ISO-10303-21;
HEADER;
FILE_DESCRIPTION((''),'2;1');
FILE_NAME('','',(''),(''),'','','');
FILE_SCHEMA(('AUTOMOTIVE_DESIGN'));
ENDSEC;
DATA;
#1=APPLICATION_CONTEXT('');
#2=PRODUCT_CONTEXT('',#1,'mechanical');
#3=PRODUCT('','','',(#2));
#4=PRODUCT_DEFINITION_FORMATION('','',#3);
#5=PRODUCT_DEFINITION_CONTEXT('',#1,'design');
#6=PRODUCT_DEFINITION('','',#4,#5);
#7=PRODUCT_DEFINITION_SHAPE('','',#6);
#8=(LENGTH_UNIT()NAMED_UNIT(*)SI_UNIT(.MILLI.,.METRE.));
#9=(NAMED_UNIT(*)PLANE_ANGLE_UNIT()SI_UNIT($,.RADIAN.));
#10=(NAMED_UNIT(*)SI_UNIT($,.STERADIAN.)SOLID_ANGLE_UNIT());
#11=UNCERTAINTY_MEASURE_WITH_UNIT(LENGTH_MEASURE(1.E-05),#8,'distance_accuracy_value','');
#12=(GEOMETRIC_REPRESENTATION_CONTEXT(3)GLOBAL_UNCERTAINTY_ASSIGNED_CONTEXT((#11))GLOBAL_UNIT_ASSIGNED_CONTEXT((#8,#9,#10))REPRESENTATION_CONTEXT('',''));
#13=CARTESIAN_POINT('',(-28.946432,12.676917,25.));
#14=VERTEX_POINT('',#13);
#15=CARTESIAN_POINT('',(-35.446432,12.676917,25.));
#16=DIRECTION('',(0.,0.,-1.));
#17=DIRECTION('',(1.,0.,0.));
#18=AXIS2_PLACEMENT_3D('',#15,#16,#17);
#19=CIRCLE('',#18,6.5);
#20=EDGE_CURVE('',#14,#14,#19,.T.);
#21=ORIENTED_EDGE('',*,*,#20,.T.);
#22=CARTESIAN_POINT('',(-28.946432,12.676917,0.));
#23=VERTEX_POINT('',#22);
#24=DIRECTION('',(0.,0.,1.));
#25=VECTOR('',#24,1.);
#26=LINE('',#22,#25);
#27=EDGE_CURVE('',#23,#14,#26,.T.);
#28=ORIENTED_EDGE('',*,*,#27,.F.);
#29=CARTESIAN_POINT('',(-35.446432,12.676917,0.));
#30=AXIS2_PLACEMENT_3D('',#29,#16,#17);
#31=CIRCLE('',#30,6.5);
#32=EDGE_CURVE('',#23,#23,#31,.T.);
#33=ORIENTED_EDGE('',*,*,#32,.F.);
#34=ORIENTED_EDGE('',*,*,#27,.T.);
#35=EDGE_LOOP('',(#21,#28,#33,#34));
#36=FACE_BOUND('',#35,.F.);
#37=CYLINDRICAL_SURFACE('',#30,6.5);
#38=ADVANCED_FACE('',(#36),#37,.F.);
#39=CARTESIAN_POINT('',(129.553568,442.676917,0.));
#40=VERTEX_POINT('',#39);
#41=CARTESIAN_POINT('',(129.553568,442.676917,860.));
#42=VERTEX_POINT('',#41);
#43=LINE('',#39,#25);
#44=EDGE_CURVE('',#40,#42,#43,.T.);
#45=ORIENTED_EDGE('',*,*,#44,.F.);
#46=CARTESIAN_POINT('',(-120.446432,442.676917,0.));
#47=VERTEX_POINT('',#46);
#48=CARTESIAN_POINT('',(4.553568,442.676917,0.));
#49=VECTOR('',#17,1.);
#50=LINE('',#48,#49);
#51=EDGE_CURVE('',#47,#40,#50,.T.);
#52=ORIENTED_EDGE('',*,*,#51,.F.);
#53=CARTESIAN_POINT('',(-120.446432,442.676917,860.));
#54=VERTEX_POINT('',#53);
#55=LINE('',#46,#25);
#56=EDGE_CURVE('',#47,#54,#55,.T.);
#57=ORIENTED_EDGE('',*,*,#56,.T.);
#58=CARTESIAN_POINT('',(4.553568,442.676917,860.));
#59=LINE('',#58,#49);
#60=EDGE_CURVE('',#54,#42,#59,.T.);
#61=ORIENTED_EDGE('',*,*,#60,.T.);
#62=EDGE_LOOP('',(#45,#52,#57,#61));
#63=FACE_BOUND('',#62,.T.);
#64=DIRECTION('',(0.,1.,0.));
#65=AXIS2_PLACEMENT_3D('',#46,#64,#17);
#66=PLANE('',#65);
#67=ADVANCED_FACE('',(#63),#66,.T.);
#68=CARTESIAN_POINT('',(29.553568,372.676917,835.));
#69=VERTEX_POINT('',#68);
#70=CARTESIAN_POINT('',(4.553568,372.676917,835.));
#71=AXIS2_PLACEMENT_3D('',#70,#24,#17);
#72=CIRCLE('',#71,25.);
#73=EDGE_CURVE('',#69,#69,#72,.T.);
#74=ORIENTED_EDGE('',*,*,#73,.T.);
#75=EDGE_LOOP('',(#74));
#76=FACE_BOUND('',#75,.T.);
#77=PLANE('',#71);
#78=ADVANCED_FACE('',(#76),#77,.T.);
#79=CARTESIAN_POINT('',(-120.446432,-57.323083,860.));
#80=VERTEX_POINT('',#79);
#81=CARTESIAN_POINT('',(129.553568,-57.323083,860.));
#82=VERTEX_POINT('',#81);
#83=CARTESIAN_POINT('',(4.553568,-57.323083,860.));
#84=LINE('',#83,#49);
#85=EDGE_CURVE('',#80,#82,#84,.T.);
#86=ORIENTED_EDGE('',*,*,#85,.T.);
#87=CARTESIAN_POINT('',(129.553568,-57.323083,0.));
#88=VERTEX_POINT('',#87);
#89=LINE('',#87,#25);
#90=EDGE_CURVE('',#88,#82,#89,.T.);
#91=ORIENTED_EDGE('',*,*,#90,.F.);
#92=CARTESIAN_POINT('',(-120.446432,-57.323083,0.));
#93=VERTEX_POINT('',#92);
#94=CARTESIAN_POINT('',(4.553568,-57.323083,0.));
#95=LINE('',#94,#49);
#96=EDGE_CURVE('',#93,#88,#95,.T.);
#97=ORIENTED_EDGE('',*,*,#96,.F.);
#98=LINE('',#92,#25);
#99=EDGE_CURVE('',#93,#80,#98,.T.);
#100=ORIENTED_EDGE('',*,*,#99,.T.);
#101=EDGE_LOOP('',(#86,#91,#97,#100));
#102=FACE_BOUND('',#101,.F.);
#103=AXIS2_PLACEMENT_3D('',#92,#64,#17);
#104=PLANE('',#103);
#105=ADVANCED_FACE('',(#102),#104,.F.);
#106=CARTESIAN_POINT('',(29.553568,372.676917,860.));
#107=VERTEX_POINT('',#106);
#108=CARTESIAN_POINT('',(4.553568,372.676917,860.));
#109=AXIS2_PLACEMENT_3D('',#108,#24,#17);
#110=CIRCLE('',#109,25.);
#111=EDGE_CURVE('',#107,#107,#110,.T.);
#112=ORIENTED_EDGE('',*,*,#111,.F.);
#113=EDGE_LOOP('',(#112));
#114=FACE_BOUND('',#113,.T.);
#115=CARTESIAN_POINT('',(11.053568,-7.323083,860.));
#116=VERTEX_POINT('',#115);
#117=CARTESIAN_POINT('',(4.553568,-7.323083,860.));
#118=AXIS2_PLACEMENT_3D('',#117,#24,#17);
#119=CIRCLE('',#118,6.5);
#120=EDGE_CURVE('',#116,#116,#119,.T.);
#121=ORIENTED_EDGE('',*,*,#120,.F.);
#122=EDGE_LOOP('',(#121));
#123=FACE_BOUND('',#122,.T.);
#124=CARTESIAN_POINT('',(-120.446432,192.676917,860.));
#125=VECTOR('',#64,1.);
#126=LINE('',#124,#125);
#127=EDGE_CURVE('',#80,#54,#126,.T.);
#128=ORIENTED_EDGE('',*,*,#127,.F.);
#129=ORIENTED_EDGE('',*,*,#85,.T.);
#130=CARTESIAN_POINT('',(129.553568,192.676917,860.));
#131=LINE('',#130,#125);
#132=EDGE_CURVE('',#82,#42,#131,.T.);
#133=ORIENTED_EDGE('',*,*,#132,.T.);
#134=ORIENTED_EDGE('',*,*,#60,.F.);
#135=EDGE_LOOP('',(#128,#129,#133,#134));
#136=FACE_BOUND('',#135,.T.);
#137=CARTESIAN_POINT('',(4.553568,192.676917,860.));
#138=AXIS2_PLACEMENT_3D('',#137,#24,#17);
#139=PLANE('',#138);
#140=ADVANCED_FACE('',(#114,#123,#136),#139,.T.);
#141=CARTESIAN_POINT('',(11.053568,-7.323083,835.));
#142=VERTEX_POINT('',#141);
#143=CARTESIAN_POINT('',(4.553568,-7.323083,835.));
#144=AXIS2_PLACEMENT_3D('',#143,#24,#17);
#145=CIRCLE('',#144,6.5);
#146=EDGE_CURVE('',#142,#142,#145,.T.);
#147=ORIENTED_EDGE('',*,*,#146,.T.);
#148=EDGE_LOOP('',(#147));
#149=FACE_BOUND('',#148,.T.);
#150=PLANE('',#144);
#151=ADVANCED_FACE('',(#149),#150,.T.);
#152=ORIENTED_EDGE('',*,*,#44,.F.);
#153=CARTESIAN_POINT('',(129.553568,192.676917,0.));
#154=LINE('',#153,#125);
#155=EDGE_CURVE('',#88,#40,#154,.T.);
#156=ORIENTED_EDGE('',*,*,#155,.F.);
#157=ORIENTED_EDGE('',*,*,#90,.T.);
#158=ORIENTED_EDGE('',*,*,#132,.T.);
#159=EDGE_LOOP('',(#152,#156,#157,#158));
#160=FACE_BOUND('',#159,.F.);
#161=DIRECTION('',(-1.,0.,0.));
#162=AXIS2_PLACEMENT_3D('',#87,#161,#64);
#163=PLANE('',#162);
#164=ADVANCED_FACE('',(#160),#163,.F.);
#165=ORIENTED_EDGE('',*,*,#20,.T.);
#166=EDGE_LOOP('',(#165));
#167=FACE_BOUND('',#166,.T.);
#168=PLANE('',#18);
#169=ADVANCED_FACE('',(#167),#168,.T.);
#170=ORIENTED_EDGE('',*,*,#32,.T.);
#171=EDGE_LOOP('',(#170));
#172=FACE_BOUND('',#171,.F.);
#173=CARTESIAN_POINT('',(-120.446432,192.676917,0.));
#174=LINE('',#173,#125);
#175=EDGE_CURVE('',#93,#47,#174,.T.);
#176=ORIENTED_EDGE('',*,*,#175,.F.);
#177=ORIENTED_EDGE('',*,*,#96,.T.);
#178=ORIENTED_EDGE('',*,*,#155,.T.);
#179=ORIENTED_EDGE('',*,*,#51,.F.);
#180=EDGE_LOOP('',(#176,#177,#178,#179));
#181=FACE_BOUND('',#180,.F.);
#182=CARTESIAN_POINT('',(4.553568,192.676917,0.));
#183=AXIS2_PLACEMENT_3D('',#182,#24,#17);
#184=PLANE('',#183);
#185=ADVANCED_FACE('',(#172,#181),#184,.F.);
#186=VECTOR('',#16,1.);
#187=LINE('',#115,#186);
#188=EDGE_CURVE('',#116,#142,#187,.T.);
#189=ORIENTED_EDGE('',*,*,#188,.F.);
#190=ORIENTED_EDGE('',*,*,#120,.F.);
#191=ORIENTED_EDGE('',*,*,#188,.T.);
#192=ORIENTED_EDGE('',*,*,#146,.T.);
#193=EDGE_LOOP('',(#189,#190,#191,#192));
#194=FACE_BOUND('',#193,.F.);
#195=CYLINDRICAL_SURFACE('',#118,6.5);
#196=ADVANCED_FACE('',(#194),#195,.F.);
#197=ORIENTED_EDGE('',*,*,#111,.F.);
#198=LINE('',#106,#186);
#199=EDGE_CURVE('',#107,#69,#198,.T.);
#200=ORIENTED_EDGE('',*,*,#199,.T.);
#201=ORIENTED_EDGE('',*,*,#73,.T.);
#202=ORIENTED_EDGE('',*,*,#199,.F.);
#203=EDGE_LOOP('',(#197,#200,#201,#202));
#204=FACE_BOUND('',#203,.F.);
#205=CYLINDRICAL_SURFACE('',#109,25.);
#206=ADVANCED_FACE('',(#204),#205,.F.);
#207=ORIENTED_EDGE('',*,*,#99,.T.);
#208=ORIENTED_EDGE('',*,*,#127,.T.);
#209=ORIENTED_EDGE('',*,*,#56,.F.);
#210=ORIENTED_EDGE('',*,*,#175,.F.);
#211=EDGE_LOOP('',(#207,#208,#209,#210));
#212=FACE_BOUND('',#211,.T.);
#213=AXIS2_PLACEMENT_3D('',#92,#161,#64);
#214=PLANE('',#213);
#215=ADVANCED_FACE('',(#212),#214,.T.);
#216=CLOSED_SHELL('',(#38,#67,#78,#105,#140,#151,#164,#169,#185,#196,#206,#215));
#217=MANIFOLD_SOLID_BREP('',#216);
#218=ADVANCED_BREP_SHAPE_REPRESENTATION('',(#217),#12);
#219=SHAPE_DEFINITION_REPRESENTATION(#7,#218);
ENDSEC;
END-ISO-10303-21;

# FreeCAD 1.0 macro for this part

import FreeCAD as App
import Part
import Sketcher
Q = App.Units.Quantity

doc = App.newDocument("Part")
params = doc.addObject("Spreadsheet::Sheet", "Params")
for row, (alias, value) in enumerate([
    ("sketch1_width", "250 mm"),
    ("sketch1_height", "500 mm"),
    ("pad1_length", "860 mm"),
    ("sketch2_diameter", "50 mm"),
    ("sketch2_diameter2", "13 mm"),
    ("pocket1_length", "25 mm"),
    ("sketch3_diameter", "13 mm"),
    ("pocket2_length", "25 mm"),
], start=1):
    params.set(f"A{row}", alias)
    params.set(f"B{row}", "=" + value)
    params.setAlias(f"B{row}", alias)

body = doc.addObject("PartDesign::Body", "Body")

sketch1 = body.newObject("Sketcher::SketchObject", "Sketch")
sketch1.AttachmentSupport = (doc.getObject("XY_Plane"), [""])
sketch1.MapMode = "FlatFace"
sketch1.addGeometry(Part.LineSegment(App.Vector(-120.446432, 442.676917, 0), App.Vector(-120.446432, -57.323083, 0)), False)
sketch1.addGeometry(Part.LineSegment(App.Vector(-120.446432, -57.323083, 0), App.Vector(129.553568, -57.323083, 0)), False)
sketch1.addGeometry(Part.LineSegment(App.Vector(129.553568, -57.323083, 0), App.Vector(129.553568, 442.676917, 0)), False)
sketch1.addGeometry(Part.LineSegment(App.Vector(129.553568, 442.676917, 0), App.Vector(-120.446432, 442.676917, 0)), False)
sketch1.addConstraint(Sketcher.Constraint("Coincident", 0, 2, 1, 1))
sketch1.addConstraint(Sketcher.Constraint("Coincident", 1, 2, 2, 1))
sketch1.addConstraint(Sketcher.Constraint("Coincident", 2, 2, 3, 1))
sketch1.addConstraint(Sketcher.Constraint("Coincident", 3, 2, 0, 1))
sketch1.addConstraint(Sketcher.Constraint("Vertical", 0))
sketch1.addConstraint(Sketcher.Constraint("Horizontal", 1))
sketch1.addConstraint(Sketcher.Constraint("Vertical", 2))
sketch1.addConstraint(Sketcher.Constraint("Horizontal", 3))
sketch1.addConstraint(Sketcher.Constraint("DistanceX", 1, 1, 1, 2, Q("250 mm")))
sketch1.addConstraint(Sketcher.Constraint("DistanceY", 0, 2, 0, 1, Q("500 mm")))
sketch1.addConstraint(Sketcher.Constraint("DistanceX", 0, 2, -1, 1, Q("120.446432 mm")))
sketch1.addConstraint(Sketcher.Constraint("DistanceY", 0, 2, -1, 1, Q("57.323083 mm")))
sketch1.setExpression("Constraints[8]", "Params.sketch1_width")
sketch1.setExpression("Constraints[9]", "Params.sketch1_height")
pad1 = body.newObject("PartDesign::Pad", "Pad")
pad1.Profile = sketch1
pad1.setExpression("Length", "Params.pad1_length")

sketch2 = body.newObject("Sketcher::SketchObject", "Sketch001")
sketch2.AttachmentSupport = (doc.getObject("XY_Plane"), [""])
sketch2.MapMode = "FlatFace"
sketch2.AttachmentOffset = App.Placement(App.Vector(0, 0, 860), App.Rotation())
sketch2.addGeometry(Part.Circle(App.Vector(4.553568, 372.676917, 0), App.Vector(0, 0, 1), 25), False)
sketch2.addGeometry(Part.Circle(App.Vector(4.553568, -7.323083, 0), App.Vector(0, 0, 1), 6.5), False)
sketch2.addConstraint(Sketcher.Constraint("Vertical", 0, 3, 1, 3))
sketch2.addConstraint(Sketcher.Constraint("Diameter", 0, Q("50 mm")))
sketch2.addConstraint(Sketcher.Constraint("Diameter", 1, Q("13 mm")))
sketch2.addConstraint(Sketcher.Constraint("DistanceY", 1, 3, 0, 3, Q("380 mm")))
sketch2.addConstraint(Sketcher.Constraint("DistanceX", -1, 1, 0, 3, Q("4.553568 mm")))
sketch2.addConstraint(Sketcher.Constraint("DistanceY", -1, 1, 0, 3, Q("372.676917 mm")))
sketch2.setExpression("Constraints[1]", "Params.sketch2_diameter")
sketch2.setExpression("Constraints[2]", "Params.sketch2_diameter2")
pocket1 = body.newObject("PartDesign::Pocket", "Pocket")
pocket1.Profile = sketch2
pocket1.setExpression("Length", "Params.pocket1_length")

sketch3 = body.newObject("Sketcher::SketchObject", "Sketch002")
sketch3.AttachmentSupport = (doc.getObject("XY_Plane"), [""])
sketch3.MapMode = "FlatFace"
sketch3.addGeometry(Part.Circle(App.Vector(-35.446432, 12.676917, 0), App.Vector(0, 0, 1), 6.5), False)
sketch3.addConstraint(Sketcher.Constraint("Diameter", 0, Q("13 mm")))
sketch3.addConstraint(Sketcher.Constraint("DistanceX", 0, 3, -1, 1, Q("35.446432 mm")))
sketch3.addConstraint(Sketcher.Constraint("DistanceY", -1, 1, 0, 3, Q("12.676917 mm")))
sketch3.setExpression("Constraints[0]", "Params.sketch3_diameter")
pocket2 = body.newObject("PartDesign::Pocket", "Pocket001")
pocket2.Profile = sketch3
pocket2.setExpression("Length", "Params.pocket2_length")
pocket2.Reversed = True

doc.recompute()
